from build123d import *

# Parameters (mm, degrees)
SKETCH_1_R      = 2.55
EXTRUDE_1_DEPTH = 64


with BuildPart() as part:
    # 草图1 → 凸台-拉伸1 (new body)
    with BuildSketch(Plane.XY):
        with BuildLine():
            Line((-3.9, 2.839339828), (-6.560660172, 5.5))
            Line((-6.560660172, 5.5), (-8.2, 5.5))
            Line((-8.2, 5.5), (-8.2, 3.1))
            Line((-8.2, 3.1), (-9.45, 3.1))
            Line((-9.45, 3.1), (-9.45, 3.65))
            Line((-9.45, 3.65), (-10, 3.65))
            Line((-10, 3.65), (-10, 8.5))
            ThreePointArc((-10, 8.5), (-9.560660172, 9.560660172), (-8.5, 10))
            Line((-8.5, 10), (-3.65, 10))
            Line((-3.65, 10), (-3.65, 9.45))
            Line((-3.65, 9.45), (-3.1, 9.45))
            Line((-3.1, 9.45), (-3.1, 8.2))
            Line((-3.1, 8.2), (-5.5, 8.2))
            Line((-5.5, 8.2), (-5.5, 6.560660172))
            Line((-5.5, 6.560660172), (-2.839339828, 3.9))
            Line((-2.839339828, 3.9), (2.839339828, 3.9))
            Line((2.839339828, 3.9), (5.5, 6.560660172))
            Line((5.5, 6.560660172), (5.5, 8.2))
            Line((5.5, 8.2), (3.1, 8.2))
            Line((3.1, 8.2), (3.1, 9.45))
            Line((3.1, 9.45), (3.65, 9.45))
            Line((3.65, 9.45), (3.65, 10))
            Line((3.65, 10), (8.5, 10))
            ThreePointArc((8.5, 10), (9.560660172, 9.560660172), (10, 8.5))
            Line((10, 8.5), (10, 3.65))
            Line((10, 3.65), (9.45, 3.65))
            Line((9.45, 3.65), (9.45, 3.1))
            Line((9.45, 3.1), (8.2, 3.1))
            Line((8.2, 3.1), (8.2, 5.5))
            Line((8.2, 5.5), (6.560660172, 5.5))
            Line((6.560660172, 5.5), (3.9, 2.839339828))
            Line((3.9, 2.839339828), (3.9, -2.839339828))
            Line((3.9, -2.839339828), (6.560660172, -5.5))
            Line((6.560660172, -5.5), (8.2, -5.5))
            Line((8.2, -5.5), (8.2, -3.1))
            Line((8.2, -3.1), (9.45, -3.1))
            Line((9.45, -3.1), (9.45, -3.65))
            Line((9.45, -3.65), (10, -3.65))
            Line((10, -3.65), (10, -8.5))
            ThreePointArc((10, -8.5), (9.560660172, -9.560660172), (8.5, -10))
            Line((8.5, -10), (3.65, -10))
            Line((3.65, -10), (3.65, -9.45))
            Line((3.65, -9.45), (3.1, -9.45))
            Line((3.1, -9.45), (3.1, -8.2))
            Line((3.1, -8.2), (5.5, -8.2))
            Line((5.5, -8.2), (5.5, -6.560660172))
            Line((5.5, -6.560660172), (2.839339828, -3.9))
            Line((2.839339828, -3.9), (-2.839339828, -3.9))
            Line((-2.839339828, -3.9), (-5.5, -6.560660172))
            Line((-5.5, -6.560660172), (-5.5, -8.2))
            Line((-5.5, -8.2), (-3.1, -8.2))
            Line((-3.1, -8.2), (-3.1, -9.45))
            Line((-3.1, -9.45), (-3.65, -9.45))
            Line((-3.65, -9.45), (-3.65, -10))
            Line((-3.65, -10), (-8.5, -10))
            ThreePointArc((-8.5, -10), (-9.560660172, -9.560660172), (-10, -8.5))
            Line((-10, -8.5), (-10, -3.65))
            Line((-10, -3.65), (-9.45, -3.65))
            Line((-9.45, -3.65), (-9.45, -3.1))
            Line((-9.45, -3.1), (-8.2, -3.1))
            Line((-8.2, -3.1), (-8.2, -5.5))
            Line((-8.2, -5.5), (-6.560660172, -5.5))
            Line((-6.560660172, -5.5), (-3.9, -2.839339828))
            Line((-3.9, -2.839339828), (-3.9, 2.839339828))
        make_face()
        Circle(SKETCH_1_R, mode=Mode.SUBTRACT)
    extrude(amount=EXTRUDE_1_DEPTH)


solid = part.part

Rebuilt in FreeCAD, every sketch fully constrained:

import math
import FreeCAD as App
import Part
import Sketcher
Q = App.Units.Quantity

doc = App.newDocument("Part")
body = doc.addObject("PartDesign::Body", "Body")

sketch1 = doc.addObject("Sketcher::SketchObject", "Sketch")
body.addObject(sketch1)
sketch1.AttachmentSupport = (doc.XY_Plane, [""])
sketch1.MapMode = "FlatFace"
sketch1.addGeometry([
    Part.LineSegment(App.Vector(-6.6, 5.5, 0), App.Vector(-3.9, 2.8, 0)),
    Part.LineSegment(App.Vector(-3.9, 2.8, 0), App.Vector(-3.9, -2.8, 0)),
    Part.LineSegment(App.Vector(-3.9, -2.8, 0), App.Vector(-6.6, -5.5, 0)),
    Part.LineSegment(App.Vector(-6.6, -5.5, 0), App.Vector(-8.2, -5.5, 0)),
    Part.LineSegment(App.Vector(-8.2, -5.5, 0), App.Vector(-8.2, -3.1, 0)),
    Part.LineSegment(App.Vector(-8.2, -3.1, 0), App.Vector(-9.4, -3.1, 0)),
    Part.LineSegment(App.Vector(-9.4, -3.1, 0), App.Vector(-9.4, -3.6, 0)),
    Part.LineSegment(App.Vector(-9.4, -3.6, 0), App.Vector(-10, -3.6, 0)),
    Part.LineSegment(App.Vector(-10, -3.6, 0), App.Vector(-10, -8.5, 0)),
    Part.ArcOfCircle(Part.Circle(App.Vector(-8.5, -8.5, 0), App.Vector(0, 0, 1), 1.5), math.radians(180), math.radians(270)),
    Part.LineSegment(App.Vector(-8.5, -10, 0), App.Vector(-3.6, -10, 0)),
    Part.LineSegment(App.Vector(-3.6, -10, 0), App.Vector(-3.6, -9.4, 0)),
    Part.LineSegment(App.Vector(-3.6, -9.4, 0), App.Vector(-3.1, -9.4, 0)),
    Part.LineSegment(App.Vector(-3.1, -9.4, 0), App.Vector(-3.1, -8.2, 0)),
    Part.LineSegment(App.Vector(-3.1, -8.2, 0), App.Vector(-5.5, -8.2, 0)),
    Part.LineSegment(App.Vector(-5.5, -8.2, 0), App.Vector(-5.5, -6.6, 0)),
    Part.LineSegment(App.Vector(-5.5, -6.6, 0), App.Vector(-2.8, -3.9, 0)),
    Part.LineSegment(App.Vector(-2.8, -3.9, 0), App.Vector(2.8, -3.9, 0)),
    Part.LineSegment(App.Vector(2.8, -3.9, 0), App.Vector(5.5, -6.6, 0)),
    Part.LineSegment(App.Vector(5.5, -6.6, 0), App.Vector(5.5, -8.2, 0)),
    Part.LineSegment(App.Vector(5.5, -8.2, 0), App.Vector(3.1, -8.2, 0)),
    Part.LineSegment(App.Vector(3.1, -8.2, 0), App.Vector(3.1, -9.4, 0)),
    Part.LineSegment(App.Vector(3.1, -9.4, 0), App.Vector(3.6, -9.4, 0)),
    Part.LineSegment(App.Vector(3.6, -9.4, 0), App.Vector(3.6, -10, 0)),
    Part.LineSegment(App.Vector(3.6, -10, 0), App.Vector(8.5, -10, 0)),
    Part.ArcOfCircle(Part.Circle(App.Vector(8.5, -8.5, 0), App.Vector(0, 0, 1), 1.5), math.radians(-90), math.radians(0)),
    Part.LineSegment(App.Vector(10, -8.5, 0), App.Vector(10, -3.6, 0)),
    Part.LineSegment(App.Vector(10, -3.6, 0), App.Vector(9.4, -3.6, 0)),
    Part.LineSegment(App.Vector(9.4, -3.6, 0), App.Vector(9.4, -3.1, 0)),
    Part.LineSegment(App.Vector(9.4, -3.1, 0), App.Vector(8.2, -3.1, 0)),
    Part.LineSegment(App.Vector(8.2, -3.1, 0), App.Vector(8.2, -5.5, 0)),
    Part.LineSegment(App.Vector(8.2, -5.5, 0), App.Vector(6.6, -5.5, 0)),
    Part.LineSegment(App.Vector(6.6, -5.5, 0), App.Vector(3.9, -2.8, 0)),
    Part.LineSegment(App.Vector(3.9, -2.8, 0), App.Vector(3.9, 2.8, 0)),
    Part.LineSegment(App.Vector(3.9, 2.8, 0), App.Vector(6.6, 5.5, 0)),
    Part.LineSegment(App.Vector(6.6, 5.5, 0), App.Vector(8.2, 5.5, 0)),
    Part.LineSegment(App.Vector(8.2, 5.5, 0), App.Vector(8.2, 3.1, 0)),
    Part.LineSegment(App.Vector(8.2, 3.1, 0), App.Vector(9.4, 3.1, 0)),
    Part.LineSegment(App.Vector(9.4, 3.1, 0), App.Vector(9.4, 3.6, 0)),
    Part.LineSegment(App.Vector(9.4, 3.6, 0), App.Vector(10, 3.6, 0)),
    Part.LineSegment(App.Vector(10, 3.6, 0), App.Vector(10, 8.5, 0)),
    Part.ArcOfCircle(Part.Circle(App.Vector(8.5, 8.5, 0), App.Vector(0, 0, 1), 1.5), math.radians(0), math.radians(90)),
    Part.LineSegment(App.Vector(8.5, 10, 0), App.Vector(3.6, 10, 0)),
    Part.LineSegment(App.Vector(3.6, 10, 0), App.Vector(3.6, 9.4, 0)),
    Part.LineSegment(App.Vector(3.6, 9.4, 0), App.Vector(3.1, 9.4, 0)),
    Part.LineSegment(App.Vector(3.1, 9.4, 0), App.Vector(3.1, 8.2, 0)),
    Part.LineSegment(App.Vector(3.1, 8.2, 0), App.Vector(5.5, 8.2, 0)),
    Part.LineSegment(App.Vector(5.5, 8.2, 0), App.Vector(5.5, 6.6, 0)),
    Part.LineSegment(App.Vector(5.5, 6.6, 0), App.Vector(2.8, 3.9, 0)),
    Part.LineSegment(App.Vector(2.8, 3.9, 0), App.Vector(-2.8, 3.9, 0)),
    Part.LineSegment(App.Vector(-2.8, 3.9, 0), App.Vector(-5.5, 6.6, 0)),
    Part.LineSegment(App.Vector(-5.5, 6.6, 0), App.Vector(-5.5, 8.2, 0)),
    Part.LineSegment(App.Vector(-5.5, 8.2, 0), App.Vector(-3.1, 8.2, 0)),
    Part.LineSegment(App.Vector(-3.1, 8.2, 0), App.Vector(-3.1, 9.4, 0)),
    Part.LineSegment(App.Vector(-3.1, 9.4, 0), App.Vector(-3.6, 9.4, 0)),
    Part.LineSegment(App.Vector(-3.6, 9.4, 0), App.Vector(-3.6, 10, 0)),
    Part.LineSegment(App.Vector(-3.6, 10, 0), App.Vector(-8.5, 10, 0)),
    Part.ArcOfCircle(Part.Circle(App.Vector(-8.5, 8.5, 0), App.Vector(0, 0, 1), 1.5), math.radians(90), math.radians(180)),
    Part.LineSegment(App.Vector(-10, 8.5, 0), App.Vector(-10, 3.6, 0)),
    Part.LineSegment(App.Vector(-10, 3.6, 0), App.Vector(-9.4, 3.6, 0)),
    Part.LineSegment(App.Vector(-9.4, 3.6, 0), App.Vector(-9.4, 3.1, 0)),
    Part.LineSegment(App.Vector(-9.4, 3.1, 0), App.Vector(-8.2, 3.1, 0)),
    Part.LineSegment(App.Vector(-8.2, 3.1, 0), App.Vector(-8.2, 5.5, 0)),
    Part.LineSegment(App.Vector(-8.2, 5.5, 0), App.Vector(-6.6, 5.5, 0)),
    Part.Circle(App.Vector(0, 0, 0), App.Vector(0, 0, 1), 2.5),
], False)
sketch1.addConstraint([
    Sketcher.Constraint("Coincident", 0, 2, 1, 1),
    Sketcher.Constraint("Coincident", 1, 2, 2, 1),
    Sketcher.Constraint("Coincident", 2, 2, 3, 1),
    Sketcher.Constraint("Coincident", 3, 2, 4, 1),
    Sketcher.Constraint("Coincident", 4, 2, 5, 1),
    Sketcher.Constraint("Coincident", 5, 2, 6, 1),
    Sketcher.Constraint("Coincident", 6, 2, 7, 1),
    Sketcher.Constraint("Coincident", 7, 2, 8, 1),
    Sketcher.Constraint("Tangent", 8, 2, 9, 1),
    Sketcher.Constraint("Tangent", 9, 2, 10, 1),
    Sketcher.Constraint("Coincident", 10, 2, 11, 1),
    Sketcher.Constraint("Coincident", 11, 2, 12, 1),
    Sketcher.Constraint("Coincident", 12, 2, 13, 1),
    Sketcher.Constraint("Coincident", 13, 2, 14, 1),
    Sketcher.Constraint("Coincident", 14, 2, 15, 1),
    Sketcher.Constraint("Coincident", 15, 2, 16, 1),
    Sketcher.Constraint("Coincident", 16, 2, 17, 1),
    Sketcher.Constraint("Coincident", 17, 2, 18, 1),
    Sketcher.Constraint("Coincident", 18, 2, 19, 1),
    Sketcher.Constraint("Coincident", 19, 2, 20, 1),
    Sketcher.Constraint("Coincident", 20, 2, 21, 1),
    Sketcher.Constraint("Coincident", 21, 2, 22, 1),
    Sketcher.Constraint("Coincident", 22, 2, 23, 1),
    Sketcher.Constraint("Coincident", 23, 2, 24, 1),
    Sketcher.Constraint("Tangent", 24, 2, 25, 1),
    Sketcher.Constraint("Tangent", 25, 2, 26, 1),
    Sketcher.Constraint("Coincident", 26, 2, 27, 1),
    Sketcher.Constraint("Coincident", 27, 2, 28, 1),
    Sketcher.Constraint("Coincident", 28, 2, 29, 1),
    Sketcher.Constraint("Coincident", 29, 2, 30, 1),
    Sketcher.Constraint("Coincident", 30, 2, 31, 1),
    Sketcher.Constraint("Coincident", 31, 2, 32, 1),
    Sketcher.Constraint("Coincident", 32, 2, 33, 1),
    Sketcher.Constraint("Coincident", 33, 2, 34, 1),
    Sketcher.Constraint("Coincident", 34, 2, 35, 1),
    Sketcher.Constraint("Coincident", 35, 2, 36, 1),
    Sketcher.Constraint("Coincident", 36, 2, 37, 1),
    Sketcher.Constraint("Coincident", 37, 2, 38, 1),
    Sketcher.Constraint("Coincident", 38, 2, 39, 1),
    Sketcher.Constraint("Coincident", 39, 2, 40, 1),
    Sketcher.Constraint("Tangent", 40, 2, 41, 1),
    Sketcher.Constraint("Tangent", 41, 2, 42, 1),
    Sketcher.Constraint("Coincident", 42, 2, 43, 1),
    Sketcher.Constraint("Coincident", 43, 2, 44, 1),
    Sketcher.Constraint("Coincident", 44, 2, 45, 1),
    Sketcher.Constraint("Coincident", 45, 2, 46, 1),
    Sketcher.Constraint("Coincident", 46, 2, 47, 1),
    Sketcher.Constraint("Coincident", 47, 2, 48, 1),
    Sketcher.Constraint("Coincident", 48, 2, 49, 1),
    Sketcher.Constraint("Coincident", 49, 2, 50, 1),
    Sketcher.Constraint("Coincident", 50, 2, 51, 1),
    Sketcher.Constraint("Coincident", 51, 2, 52, 1),
    Sketcher.Constraint("Coincident", 52, 2, 53, 1),
    Sketcher.Constraint("Coincident", 53, 2, 54, 1),
    Sketcher.Constraint("Coincident", 54, 2, 55, 1),
    Sketcher.Constraint("Coincident", 55, 2, 56, 1),
    Sketcher.Constraint("Tangent", 56, 2, 57, 1),
    Sketcher.Constraint("Tangent", 57, 2, 58, 1),
    Sketcher.Constraint("Coincident", 58, 2, 59, 1),
    Sketcher.Constraint("Coincident", 59, 2, 60, 1),
    Sketcher.Constraint("Coincident", 60, 2, 61, 1),
    Sketcher.Constraint("Coincident", 61, 2, 62, 1),
    Sketcher.Constraint("Coincident", 62, 2, 63, 1),
    Sketcher.Constraint("Coincident", 63, 2, 0, 1),
    Sketcher.Constraint("Vertical", 1),
    Sketcher.Constraint("Horizontal", 3),
    Sketcher.Constraint("Vertical", 4),
    Sketcher.Constraint("Horizontal", 5),
    Sketcher.Constraint("Vertical", 6),
    Sketcher.Constraint("Horizontal", 7),
    Sketcher.Constraint("Vertical", 8),
    Sketcher.Constraint("Horizontal", 10),
    Sketcher.Constraint("Vertical", 11),
    Sketcher.Constraint("Horizontal", 12),
    Sketcher.Constraint("Vertical", 13),
    Sketcher.Constraint("Horizontal", 14),
    Sketcher.Constraint("Vertical", 15),
    Sketcher.Constraint("Horizontal", 17),
    Sketcher.Constraint("Vertical", 19),
    Sketcher.Constraint("Horizontal", 20),
    Sketcher.Constraint("Vertical", 21),
    Sketcher.Constraint("Horizontal", 22),
    Sketcher.Constraint("Vertical", 23),
    Sketcher.Constraint("Horizontal", 24),
    Sketcher.Constraint("Vertical", 26),
    Sketcher.Constraint("Horizontal", 27),
    Sketcher.Constraint("Vertical", 28),
    Sketcher.Constraint("Horizontal", 29),
    Sketcher.Constraint("Vertical", 30),
    Sketcher.Constraint("Horizontal", 31),
    Sketcher.Constraint("Vertical", 33),
    Sketcher.Constraint("Horizontal", 35),
    Sketcher.Constraint("Vertical", 36),
    Sketcher.Constraint("Horizontal", 37),
    Sketcher.Constraint("Vertical", 38),
    Sketcher.Constraint("Horizontal", 39),
    Sketcher.Constraint("Vertical", 40),
    Sketcher.Constraint("Horizontal", 42),
    Sketcher.Constraint("Vertical", 43),
    Sketcher.Constraint("Horizontal", 44),
    Sketcher.Constraint("Vertical", 45),
    Sketcher.Constraint("Horizontal", 46),
    Sketcher.Constraint("Vertical", 47),
    Sketcher.Constraint("Horizontal", 49),
    Sketcher.Constraint("Vertical", 51),
    Sketcher.Constraint("Horizontal", 52),
    Sketcher.Constraint("Vertical", 53),
    Sketcher.Constraint("Horizontal", 54),
    Sketcher.Constraint("Vertical", 55),
    Sketcher.Constraint("Horizontal", 56),
    Sketcher.Constraint("Vertical", 58),
    Sketcher.Constraint("Horizontal", 59),
    Sketcher.Constraint("Vertical", 60),
    Sketcher.Constraint("Horizontal", 61),
    Sketcher.Constraint("Vertical", 62),
    Sketcher.Constraint("Horizontal", 63),
    Sketcher.Constraint("Coincident", 64, 3, -1, 1),
    Sketcher.Constraint("Equal", 9, 25),
    Sketcher.Constraint("Equal", 25, 41),
    Sketcher.Constraint("Equal", 41, 57),
    Sketcher.Constraint("Symmetric", 9, 3, 41, 3, -1, 1),
    Sketcher.Constraint("Symmetric", 25, 3, 57, 3, -1, 1),
    Sketcher.Constraint("Symmetric", 0, 2, 32, 2, -1, 1),
    Sketcher.Constraint("Symmetric", 2, 2, 34, 2, -1, 1),
    Sketcher.Constraint("Symmetric", 4, 2, 36, 2, -1, 1),
    Sketcher.Constraint("Symmetric", 6, 2, 38, 2, -1, 1),
    Sketcher.Constraint("Symmetric", 11, 2, 43, 2, -1, 1),
    Sketcher.Constraint("Symmetric", 13, 2, 45, 2, -1, 1),
    Sketcher.Constraint("Symmetric", 15, 2, 47, 2, -1, 1),
    Sketcher.Constraint("Symmetric", 16, 2, 48, 2, -1, 1),
    Sketcher.Constraint("Symmetric", 18, 2, 50, 2, -1, 1),
    Sketcher.Constraint("Symmetric", 20, 2, 52, 2, -1, 1),
    Sketcher.Constraint("Symmetric", 22, 2, 54, 2, -1, 1),
    Sketcher.Constraint("Symmetric", 27, 2, 59, 2, -1, 1),
    Sketcher.Constraint("Symmetric", 29, 2, 61, 2, -1, 1),
    Sketcher.Constraint("Symmetric", 31, 2, 63, 2, -1, 1),
    Sketcher.Constraint("Symmetric", 9, 3, 25, 3, -2),
    Sketcher.Constraint("Symmetric", 15, 2, 18, 2, -2),
    Sketcher.Constraint("Symmetric", 13, 2, 20, 2, -2),
    Sketcher.Constraint("Symmetric", 11, 2, 22, 2, -2),
    Sketcher.Constraint("Symmetric", 6, 2, 27, 2, -2),
    Sketcher.Constraint("Symmetric", 4, 2, 29, 2, -2),
    Sketcher.Constraint("Symmetric", 2, 2, 31, 2, -2),
    Sketcher.Constraint("Perpendicular", 0, 2),
    Sketcher.Constraint("Parallel", 2, 16),
    Sketcher.Constraint("Perpendicular", 16, 18),
    Sketcher.Constraint("Perpendicular", 32, 34),
    Sketcher.Constraint("Perpendicular", 48, 50),
    Sketcher.Constraint("Horizontal", 1, 2, 32, 2),
    Sketcher.Constraint("Equal", 7, 12),
    Sketcher.Constraint("Equal", 49, 1),
    Sketcher.Constraint("Equal", 52, 4),
    Sketcher.Constraint("Equal", 59, 6),
    Sketcher.Constraint("Equal", 56, 8),
    Sketcher.Constraint("Equal", 6, 11),
    Sketcher.Constraint("Equal", 61, 13),
    Sketcher.Constraint("Equal", 63, 15),
    Sketcher.Constraint("Equal", 2, 16),
    Sketcher.Constraint("Diameter", 64, Q("5.1 mm")),
    Sketcher.Constraint("Radius", 9, Q("1.5 mm")),
    Sketcher.Constraint("DistanceX", 14, 2, 14, 1, Q("2.4 mm")),
    Sketcher.Constraint("DistanceX", 7, 2, -1, 1, Q("10 mm")),
    Sketcher.Constraint("DistanceX", 5, 2, 5, 1, Q("1.25 mm")),
    Sketcher.Constraint("DistanceX", 7, 2, 7, 1, Q("0.55 mm")),
    Sketcher.Constraint("DistanceX", 10, 1, 10, 2, Q("4.85 mm")),
    Sketcher.Constraint("DistanceX", 0, 2, -1, 1, Q("3.9 mm")),
    Sketcher.Constraint("DistanceX", 3, 2, 3, 1, Q("1.63934 mm")),
])
pad1 = doc.addObject("PartDesign::Pad", "Pad")
body.addObject(pad1)
pad1.Profile = sketch1
pad1.Length = 64

doc.recompute()
